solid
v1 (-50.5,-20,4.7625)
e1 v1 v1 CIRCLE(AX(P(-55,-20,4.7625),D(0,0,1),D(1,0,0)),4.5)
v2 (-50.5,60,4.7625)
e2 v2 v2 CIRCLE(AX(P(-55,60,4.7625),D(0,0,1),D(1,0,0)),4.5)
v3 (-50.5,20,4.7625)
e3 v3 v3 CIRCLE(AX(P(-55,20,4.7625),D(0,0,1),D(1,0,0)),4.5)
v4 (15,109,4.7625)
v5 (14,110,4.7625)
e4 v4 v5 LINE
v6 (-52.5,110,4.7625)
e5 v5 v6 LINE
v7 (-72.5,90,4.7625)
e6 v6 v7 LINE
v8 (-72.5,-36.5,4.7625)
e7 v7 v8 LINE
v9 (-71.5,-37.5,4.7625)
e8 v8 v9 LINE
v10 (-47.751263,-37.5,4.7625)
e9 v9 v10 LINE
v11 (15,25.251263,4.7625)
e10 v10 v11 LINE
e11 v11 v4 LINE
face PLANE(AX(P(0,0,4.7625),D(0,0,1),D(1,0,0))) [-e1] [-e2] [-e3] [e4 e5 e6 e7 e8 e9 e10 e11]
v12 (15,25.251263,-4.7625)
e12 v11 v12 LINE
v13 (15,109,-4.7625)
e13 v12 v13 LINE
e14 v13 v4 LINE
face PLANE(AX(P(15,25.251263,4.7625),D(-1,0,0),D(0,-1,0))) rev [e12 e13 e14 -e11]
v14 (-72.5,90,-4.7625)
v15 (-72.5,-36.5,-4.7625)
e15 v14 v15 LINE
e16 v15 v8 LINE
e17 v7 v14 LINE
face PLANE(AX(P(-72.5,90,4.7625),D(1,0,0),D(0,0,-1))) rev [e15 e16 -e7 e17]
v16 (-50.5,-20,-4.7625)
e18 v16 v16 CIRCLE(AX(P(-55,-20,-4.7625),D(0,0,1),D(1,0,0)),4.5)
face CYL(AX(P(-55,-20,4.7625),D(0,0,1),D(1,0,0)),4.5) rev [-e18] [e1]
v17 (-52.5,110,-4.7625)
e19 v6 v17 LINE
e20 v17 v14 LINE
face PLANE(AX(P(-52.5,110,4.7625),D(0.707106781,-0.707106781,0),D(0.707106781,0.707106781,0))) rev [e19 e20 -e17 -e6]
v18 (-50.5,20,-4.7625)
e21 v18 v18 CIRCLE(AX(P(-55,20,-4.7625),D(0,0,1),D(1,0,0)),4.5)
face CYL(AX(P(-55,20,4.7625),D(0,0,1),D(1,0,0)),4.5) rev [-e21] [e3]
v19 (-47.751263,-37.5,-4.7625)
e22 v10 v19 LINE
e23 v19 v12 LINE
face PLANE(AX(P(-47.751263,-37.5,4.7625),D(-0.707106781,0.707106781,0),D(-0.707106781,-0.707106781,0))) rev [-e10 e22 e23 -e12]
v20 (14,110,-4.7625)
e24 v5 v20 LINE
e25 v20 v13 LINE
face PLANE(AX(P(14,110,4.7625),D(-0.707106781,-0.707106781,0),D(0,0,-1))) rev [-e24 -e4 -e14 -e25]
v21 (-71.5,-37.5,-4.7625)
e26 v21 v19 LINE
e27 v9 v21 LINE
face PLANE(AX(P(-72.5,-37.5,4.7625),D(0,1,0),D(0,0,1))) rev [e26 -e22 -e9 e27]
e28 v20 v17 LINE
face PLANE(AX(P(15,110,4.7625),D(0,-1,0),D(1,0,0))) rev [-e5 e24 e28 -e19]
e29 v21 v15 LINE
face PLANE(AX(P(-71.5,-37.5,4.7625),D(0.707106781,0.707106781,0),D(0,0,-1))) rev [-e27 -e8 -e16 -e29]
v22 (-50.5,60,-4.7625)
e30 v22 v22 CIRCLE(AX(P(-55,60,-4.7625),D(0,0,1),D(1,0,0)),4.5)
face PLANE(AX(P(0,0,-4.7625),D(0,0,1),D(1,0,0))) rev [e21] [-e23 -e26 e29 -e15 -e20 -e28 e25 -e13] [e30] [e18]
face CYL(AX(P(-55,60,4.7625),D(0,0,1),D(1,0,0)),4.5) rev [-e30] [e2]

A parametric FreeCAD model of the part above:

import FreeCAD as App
import Part
import Sketcher

V = App.Vector
Q = App.Units.Quantity


def edges_at(feature, points):
    """Names of the edges that pass closest to the given points."""
    edges = feature.Shape.Edges
    near = lambda p: min(range(len(edges)), key=lambda i: edges[i].distToShape(Part.Vertex(*p))[0])
    return sorted({f"Edge{near(p) + 1}" for p in points})

doc = App.newDocument("Part")
body = doc.addObject("PartDesign::Body", "Body")

sketch1 = doc.addObject("Sketcher::SketchObject", "Sketch")
body.addObject(sketch1)
sketch1.AttachmentSupport = (doc.XY_Plane, [""])
sketch1.MapMode = "FlatFace"
sketch1.addGeometry(Part.LineSegment(V(-72.5, -37.5, 0), V(-47.751263, -37.5, 0)), False)
sketch1.addGeometry(Part.LineSegment(V(-47.751263, -37.5, 0), V(15, 25.251263, 0)), False)
sketch1.addGeometry(Part.LineSegment(V(15, 25.251263, 0), V(15, 110, 0)), False)
sketch1.addGeometry(Part.LineSegment(V(15, 110, 0), V(-52.5, 110, 0)), False)
sketch1.addGeometry(Part.LineSegment(V(-52.5, 110, 0), V(-72.5, 90, 0)), False)
sketch1.addGeometry(Part.LineSegment(V(-72.5, 90, 0), V(-72.5, -37.5, 0)), False)
sketch1.addConstraint(Sketcher.Constraint("Coincident", 0, 2, 1, 1))
sketch1.addConstraint(Sketcher.Constraint("Coincident", 1, 2, 2, 1))
sketch1.addConstraint(Sketcher.Constraint("Coincident", 2, 2, 3, 1))
sketch1.addConstraint(Sketcher.Constraint("Coincident", 3, 2, 4, 1))
sketch1.addConstraint(Sketcher.Constraint("Coincident", 4, 2, 5, 1))
sketch1.addConstraint(Sketcher.Constraint("Coincident", 5, 2, 0, 1))
sketch1.addConstraint(Sketcher.Constraint("Horizontal", 0))
sketch1.addConstraint(Sketcher.Constraint("Vertical", 2))
sketch1.addConstraint(Sketcher.Constraint("Horizontal", 3))
sketch1.addConstraint(Sketcher.Constraint("Vertical", 5))
sketch1.addConstraint(Sketcher.Constraint("Parallel", 1, 4))
sketch1.addConstraint(Sketcher.Constraint("Angle", 1, Q("45 deg")))
sketch1.addConstraint(Sketcher.Constraint("DistanceX", 3, 2, 3, 1, Q("67.5 mm")))
sketch1.addConstraint(Sketcher.Constraint("DistanceY", 5, 2, 5, 1, Q("127.5 mm")))
sketch1.addConstraint(Sketcher.Constraint("DistanceX", -1, 1, 1, 2, Q("15 mm")))
sketch1.addConstraint(Sketcher.Constraint("DistanceY", -1, 1, 2, 2, Q("110 mm")))
sketch1.addConstraint(Sketcher.Constraint("DistanceY", -1, 1, 4, 2, Q("90 mm")))
sketch1.addConstraint(Sketcher.Constraint("DistanceX", 0, 1, 0, 2, Q("24.748737 mm")))
pad1 = doc.addObject("PartDesign::Pad", "Pad")
body.addObject(pad1)
pad1.Profile = sketch1
pad1.Length = 9.525
pad1.Midplane = True

sketch2 = doc.addObject("Sketcher::SketchObject", "Sketch001")
body.addObject(sketch2)
sketch2.AttachmentSupport = (doc.XY_Plane, [""])
sketch2.MapMode = "FlatFace"
sketch2.AttachmentOffset = App.Placement(V(0, 0, 4.7625), App.Rotation())
sketch2.addGeometry(Part.Circle(V(-55, 60, 0), V(0, 0, 1), 4.5), False)
sketch2.addGeometry(Part.Circle(V(-55, 20, 0), V(0, 0, 1), 4.5), False)
sketch2.addGeometry(Part.Circle(V(-55, -20, 0), V(0, 0, 1), 4.5), False)
sketch2.addConstraint(Sketcher.Constraint("Equal", 0, 1))
sketch2.addConstraint(Sketcher.Constraint("Equal", 1, 2))
sketch2.addConstraint(Sketcher.Constraint("Symmetric", 1, 3, 2, 3, -1))
sketch2.addConstraint(Sketcher.Constraint("Vertical", 0, 3, 1, 3))
sketch2.addConstraint(Sketcher.Constraint("Diameter", 0, Q("9 mm")))
sketch2.addConstraint(Sketcher.Constraint("DistanceX", 0, 3, -1, 1, Q("55 mm")))
sketch2.addConstraint(Sketcher.Constraint("DistanceY", -1, 1, 0, 3, Q("60 mm")))
sketch2.addConstraint(Sketcher.Constraint("DistanceY", -1, 1, 1, 3, Q("20 mm")))
doc.recompute()
hole = doc.addObject("PartDesign::Hole", "Hole")
body.addObject(hole)
hole.Profile = sketch2
hole.ThreadType = "None"
hole.Diameter = 9
hole.DepthType = "ThroughAll"
doc.recompute()

chamfer = doc.addObject("PartDesign::Chamfer", "Chamfer")
body.addObject(chamfer)
chamfer.Base = (hole, edges_at(hole, [(15, 110, 0), (-72.5, -37.5, 0)]))
chamfer.Size = 1

doc.recompute()
